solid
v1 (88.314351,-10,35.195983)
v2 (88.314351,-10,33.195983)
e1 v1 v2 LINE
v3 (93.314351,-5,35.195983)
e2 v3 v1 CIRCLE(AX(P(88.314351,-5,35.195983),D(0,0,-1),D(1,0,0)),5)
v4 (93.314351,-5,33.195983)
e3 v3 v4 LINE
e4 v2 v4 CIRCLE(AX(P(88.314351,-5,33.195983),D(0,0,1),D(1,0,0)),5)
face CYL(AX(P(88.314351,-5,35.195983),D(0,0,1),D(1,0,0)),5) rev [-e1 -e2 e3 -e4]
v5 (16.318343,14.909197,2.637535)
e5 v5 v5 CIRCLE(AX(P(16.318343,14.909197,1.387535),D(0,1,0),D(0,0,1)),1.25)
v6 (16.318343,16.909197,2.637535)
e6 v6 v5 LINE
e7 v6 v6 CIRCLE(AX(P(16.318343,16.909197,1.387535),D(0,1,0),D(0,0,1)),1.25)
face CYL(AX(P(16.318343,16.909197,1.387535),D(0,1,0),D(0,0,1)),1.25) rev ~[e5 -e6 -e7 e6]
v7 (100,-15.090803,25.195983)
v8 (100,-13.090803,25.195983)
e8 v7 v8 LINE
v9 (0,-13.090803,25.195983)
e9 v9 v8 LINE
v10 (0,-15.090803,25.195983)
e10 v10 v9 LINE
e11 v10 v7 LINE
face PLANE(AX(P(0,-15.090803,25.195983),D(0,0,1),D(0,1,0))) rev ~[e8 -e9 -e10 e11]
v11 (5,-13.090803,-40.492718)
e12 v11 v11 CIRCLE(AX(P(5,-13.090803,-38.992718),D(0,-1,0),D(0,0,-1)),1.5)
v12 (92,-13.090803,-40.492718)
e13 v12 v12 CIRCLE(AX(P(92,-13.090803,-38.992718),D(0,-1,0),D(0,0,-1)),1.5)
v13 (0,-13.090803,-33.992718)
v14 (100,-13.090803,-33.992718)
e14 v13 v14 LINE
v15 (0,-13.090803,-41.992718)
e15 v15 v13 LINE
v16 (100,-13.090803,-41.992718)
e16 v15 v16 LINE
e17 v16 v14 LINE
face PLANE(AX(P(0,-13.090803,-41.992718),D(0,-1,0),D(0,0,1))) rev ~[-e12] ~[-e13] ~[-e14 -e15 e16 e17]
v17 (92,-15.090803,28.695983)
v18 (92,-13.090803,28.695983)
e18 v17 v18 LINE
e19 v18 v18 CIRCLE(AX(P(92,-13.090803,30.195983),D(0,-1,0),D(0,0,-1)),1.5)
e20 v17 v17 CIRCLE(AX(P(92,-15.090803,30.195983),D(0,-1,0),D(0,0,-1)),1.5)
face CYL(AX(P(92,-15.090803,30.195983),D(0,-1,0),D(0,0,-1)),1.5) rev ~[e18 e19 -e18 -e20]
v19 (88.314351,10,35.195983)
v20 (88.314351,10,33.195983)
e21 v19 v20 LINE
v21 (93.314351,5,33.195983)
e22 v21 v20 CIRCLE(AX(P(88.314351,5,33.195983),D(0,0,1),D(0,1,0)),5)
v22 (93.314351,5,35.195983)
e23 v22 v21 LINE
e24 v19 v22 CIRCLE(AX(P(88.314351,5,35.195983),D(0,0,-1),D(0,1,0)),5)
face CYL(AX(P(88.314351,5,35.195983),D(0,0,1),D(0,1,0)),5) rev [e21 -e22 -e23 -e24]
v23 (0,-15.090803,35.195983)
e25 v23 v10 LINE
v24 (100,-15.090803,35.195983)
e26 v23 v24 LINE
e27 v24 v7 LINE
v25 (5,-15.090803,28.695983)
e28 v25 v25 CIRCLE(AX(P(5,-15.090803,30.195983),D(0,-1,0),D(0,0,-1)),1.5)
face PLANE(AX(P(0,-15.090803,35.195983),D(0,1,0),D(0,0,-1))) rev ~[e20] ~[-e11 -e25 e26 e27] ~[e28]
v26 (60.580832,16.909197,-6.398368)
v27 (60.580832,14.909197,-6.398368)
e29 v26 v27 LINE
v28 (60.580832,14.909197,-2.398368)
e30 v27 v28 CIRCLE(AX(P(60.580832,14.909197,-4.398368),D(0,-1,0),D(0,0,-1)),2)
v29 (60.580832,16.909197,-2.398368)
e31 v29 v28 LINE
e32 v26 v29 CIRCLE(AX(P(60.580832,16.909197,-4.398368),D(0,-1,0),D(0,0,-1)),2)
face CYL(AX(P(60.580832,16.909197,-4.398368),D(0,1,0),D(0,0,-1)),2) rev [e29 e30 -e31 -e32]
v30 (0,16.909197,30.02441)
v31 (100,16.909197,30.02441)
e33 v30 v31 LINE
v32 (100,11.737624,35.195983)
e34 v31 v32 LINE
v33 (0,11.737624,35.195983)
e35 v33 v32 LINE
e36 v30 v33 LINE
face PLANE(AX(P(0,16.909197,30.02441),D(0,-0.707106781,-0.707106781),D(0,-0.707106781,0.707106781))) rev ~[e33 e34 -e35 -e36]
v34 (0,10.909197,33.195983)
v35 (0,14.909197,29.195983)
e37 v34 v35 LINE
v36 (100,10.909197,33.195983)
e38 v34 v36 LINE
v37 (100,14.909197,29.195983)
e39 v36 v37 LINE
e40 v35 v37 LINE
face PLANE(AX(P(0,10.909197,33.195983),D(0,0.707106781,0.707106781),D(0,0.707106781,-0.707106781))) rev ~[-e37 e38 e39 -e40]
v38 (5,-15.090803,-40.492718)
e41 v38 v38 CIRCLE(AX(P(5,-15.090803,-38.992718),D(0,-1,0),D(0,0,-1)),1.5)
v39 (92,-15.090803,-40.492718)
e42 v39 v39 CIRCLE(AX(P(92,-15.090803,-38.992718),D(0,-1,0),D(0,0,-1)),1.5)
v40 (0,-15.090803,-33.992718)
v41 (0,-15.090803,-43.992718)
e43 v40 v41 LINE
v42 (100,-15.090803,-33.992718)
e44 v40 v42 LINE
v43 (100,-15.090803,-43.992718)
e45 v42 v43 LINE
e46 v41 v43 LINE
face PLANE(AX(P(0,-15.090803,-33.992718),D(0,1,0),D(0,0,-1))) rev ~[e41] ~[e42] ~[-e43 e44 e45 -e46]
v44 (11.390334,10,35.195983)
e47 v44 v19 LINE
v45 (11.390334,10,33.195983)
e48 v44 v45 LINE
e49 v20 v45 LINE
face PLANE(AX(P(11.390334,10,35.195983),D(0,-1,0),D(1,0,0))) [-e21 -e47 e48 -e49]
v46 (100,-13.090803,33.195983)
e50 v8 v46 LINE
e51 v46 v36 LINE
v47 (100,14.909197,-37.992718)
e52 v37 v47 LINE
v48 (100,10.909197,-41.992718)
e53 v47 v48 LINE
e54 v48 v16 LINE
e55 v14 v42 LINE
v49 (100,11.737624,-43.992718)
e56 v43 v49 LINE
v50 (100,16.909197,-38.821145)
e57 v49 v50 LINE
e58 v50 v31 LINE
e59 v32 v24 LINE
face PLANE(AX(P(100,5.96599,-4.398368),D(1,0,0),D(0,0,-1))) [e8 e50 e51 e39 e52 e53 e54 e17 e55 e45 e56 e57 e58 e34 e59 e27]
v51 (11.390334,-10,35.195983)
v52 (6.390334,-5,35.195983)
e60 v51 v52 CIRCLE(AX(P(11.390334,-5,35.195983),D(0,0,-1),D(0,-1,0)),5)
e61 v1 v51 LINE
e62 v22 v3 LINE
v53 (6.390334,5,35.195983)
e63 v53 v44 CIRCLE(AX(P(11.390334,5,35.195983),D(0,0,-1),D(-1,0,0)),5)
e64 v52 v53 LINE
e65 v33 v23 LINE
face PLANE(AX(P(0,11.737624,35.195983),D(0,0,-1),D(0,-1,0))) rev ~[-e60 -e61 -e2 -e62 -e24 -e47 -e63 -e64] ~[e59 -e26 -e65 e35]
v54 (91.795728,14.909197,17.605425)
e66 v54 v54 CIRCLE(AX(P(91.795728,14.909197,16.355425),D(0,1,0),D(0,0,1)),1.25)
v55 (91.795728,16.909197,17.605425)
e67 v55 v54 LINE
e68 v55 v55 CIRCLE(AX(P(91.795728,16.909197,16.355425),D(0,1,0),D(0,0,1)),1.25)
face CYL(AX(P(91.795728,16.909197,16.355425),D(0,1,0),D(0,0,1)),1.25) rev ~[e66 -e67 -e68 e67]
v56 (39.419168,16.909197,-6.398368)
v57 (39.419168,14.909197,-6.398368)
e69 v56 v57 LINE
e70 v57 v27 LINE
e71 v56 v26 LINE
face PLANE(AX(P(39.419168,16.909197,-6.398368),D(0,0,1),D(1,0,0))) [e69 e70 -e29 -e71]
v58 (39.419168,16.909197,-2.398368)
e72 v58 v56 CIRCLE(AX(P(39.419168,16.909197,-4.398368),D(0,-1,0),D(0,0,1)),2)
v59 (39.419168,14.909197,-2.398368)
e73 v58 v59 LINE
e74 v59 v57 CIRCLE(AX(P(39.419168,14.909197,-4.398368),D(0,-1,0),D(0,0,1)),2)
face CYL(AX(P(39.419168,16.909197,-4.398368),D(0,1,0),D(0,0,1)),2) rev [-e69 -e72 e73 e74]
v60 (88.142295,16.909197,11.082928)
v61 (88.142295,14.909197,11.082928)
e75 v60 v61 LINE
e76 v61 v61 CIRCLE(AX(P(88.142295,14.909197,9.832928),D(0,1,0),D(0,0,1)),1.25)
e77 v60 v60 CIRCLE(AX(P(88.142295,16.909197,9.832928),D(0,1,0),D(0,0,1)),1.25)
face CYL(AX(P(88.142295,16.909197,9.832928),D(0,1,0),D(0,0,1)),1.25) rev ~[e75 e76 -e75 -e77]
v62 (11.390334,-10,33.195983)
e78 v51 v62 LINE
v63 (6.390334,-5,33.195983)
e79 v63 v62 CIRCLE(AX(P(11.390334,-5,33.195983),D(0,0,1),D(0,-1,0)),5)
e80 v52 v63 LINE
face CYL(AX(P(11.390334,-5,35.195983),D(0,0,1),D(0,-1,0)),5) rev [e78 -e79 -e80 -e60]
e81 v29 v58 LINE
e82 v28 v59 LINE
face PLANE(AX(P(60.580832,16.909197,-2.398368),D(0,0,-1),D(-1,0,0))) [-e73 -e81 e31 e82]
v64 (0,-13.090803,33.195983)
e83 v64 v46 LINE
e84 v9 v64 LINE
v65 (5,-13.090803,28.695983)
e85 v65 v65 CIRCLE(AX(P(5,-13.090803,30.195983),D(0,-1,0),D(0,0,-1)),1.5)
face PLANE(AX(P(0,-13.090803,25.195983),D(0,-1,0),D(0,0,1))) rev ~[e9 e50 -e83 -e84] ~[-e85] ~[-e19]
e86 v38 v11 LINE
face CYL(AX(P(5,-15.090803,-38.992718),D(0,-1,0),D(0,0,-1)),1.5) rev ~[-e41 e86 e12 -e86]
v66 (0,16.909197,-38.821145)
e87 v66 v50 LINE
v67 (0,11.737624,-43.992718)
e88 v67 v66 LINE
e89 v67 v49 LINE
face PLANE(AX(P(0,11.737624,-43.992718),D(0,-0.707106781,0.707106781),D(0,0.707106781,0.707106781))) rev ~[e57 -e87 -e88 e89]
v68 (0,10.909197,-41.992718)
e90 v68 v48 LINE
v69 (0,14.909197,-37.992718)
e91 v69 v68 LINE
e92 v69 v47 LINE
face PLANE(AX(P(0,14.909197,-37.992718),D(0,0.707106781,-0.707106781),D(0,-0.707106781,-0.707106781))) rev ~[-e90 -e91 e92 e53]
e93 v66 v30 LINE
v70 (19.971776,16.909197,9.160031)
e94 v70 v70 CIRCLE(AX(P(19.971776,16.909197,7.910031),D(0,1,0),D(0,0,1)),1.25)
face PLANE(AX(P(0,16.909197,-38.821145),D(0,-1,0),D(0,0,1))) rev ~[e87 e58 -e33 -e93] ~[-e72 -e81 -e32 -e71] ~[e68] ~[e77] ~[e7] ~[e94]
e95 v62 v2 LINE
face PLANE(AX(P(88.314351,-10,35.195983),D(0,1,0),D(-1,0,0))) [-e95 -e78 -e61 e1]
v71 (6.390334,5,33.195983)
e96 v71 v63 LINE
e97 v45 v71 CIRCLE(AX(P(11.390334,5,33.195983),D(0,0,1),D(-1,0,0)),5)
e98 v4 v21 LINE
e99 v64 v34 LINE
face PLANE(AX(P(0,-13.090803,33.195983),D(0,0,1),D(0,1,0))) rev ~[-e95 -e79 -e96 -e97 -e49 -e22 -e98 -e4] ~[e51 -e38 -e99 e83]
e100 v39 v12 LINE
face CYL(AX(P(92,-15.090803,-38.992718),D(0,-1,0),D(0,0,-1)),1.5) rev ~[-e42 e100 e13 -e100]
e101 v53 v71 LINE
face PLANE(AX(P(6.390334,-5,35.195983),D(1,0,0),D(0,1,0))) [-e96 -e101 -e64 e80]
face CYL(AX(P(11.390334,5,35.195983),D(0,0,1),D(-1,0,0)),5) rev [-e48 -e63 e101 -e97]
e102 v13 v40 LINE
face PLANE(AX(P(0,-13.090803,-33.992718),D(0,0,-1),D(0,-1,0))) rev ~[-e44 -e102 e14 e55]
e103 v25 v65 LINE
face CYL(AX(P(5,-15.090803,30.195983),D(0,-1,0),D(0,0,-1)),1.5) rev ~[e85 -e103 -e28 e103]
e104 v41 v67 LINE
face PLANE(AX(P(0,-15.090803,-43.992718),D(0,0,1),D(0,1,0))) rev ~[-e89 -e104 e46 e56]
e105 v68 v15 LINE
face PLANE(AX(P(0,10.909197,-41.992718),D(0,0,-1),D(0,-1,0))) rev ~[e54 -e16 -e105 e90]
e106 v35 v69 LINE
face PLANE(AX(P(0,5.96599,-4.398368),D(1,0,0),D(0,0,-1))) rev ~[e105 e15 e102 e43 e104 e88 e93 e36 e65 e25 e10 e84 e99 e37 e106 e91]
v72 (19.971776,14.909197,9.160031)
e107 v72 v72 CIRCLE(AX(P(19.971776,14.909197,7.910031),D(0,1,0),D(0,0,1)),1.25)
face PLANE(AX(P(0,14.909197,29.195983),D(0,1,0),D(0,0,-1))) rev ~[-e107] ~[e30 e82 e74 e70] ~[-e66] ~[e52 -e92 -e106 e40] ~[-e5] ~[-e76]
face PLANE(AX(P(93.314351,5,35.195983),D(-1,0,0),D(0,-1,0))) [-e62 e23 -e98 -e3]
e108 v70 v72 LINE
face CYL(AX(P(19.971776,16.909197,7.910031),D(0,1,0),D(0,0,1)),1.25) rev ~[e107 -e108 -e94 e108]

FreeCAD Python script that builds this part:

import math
import FreeCAD as App
import Part
import Sketcher
Q = App.Units.Quantity


def add_polygon(sketch, points):
    """Adds a closed chain of lines whose ends are joined by coincident constraints."""
    first, n = sketch.GeometryCount, len(points)
    for a, b in zip(points, points[1:] + points[:1]):
        sketch.addGeometry(Part.LineSegment(App.Vector(*a, 0), App.Vector(*b, 0)), False)
    for i in range(n):
        sketch.addConstraint(Sketcher.Constraint("Coincident", first + i, 2, first + (i + 1) % n, 1))

doc = App.newDocument("Part")
body = doc.addObject("PartDesign::Body", "Body")

sketch1 = body.newObject("Sketcher::SketchObject", "Sketch")
sketch1.AttachmentSupport = (doc.getObject("YZ_Plane"), [""])
sketch1.MapMode = "FlatFace"
add_polygon(sketch1, [(-13.1, 25.2), (-13.1, 33.2), (10.9, 33.2), (14.9, 29.2), (14.9, -38), (10.9, -42), (-13.1, -42), (-13.1, -34), (-15.1, -34), (-15.1, -44), (11.7, -44), (16.9, -38.8), (16.9, 30), (11.7, 35.2), (-15.1, 35.2), (-15.1, 25.2)])
sketch1.addConstraint([
    Sketcher.Constraint("Vertical", 0),
    Sketcher.Constraint("Horizontal", 1),
    Sketcher.Constraint("Vertical", 3),
    Sketcher.Constraint("Horizontal", 5),
    Sketcher.Constraint("Vertical", 6),
    Sketcher.Constraint("Horizontal", 7),
    Sketcher.Constraint("Vertical", 8),
    Sketcher.Constraint("Horizontal", 9),
    Sketcher.Constraint("Vertical", 11),
    Sketcher.Constraint("Horizontal", 13),
    Sketcher.Constraint("Vertical", 14),
    Sketcher.Constraint("Horizontal", 15),
    Sketcher.Constraint("Perpendicular", 2, 4),
    Sketcher.Constraint("Parallel", 4, 10),
    Sketcher.Constraint("Perpendicular", 10, 12),
    Sketcher.Constraint("Vertical", 1, 2, 4, 2),
    Sketcher.Constraint("Vertical", 0, 2, 5, 2),
    Sketcher.Constraint("Vertical", 9, 2, 12, 2),
    Sketcher.Constraint("Vertical", 8, 2, 13, 2),
    Sketcher.Constraint("Equal", 0, 6),
    Sketcher.Constraint("Equal", 8, 14),
    Sketcher.Constraint("Equal", 2, 4),
    Sketcher.Constraint("DistanceX", 1, 1, 1, 2, Q("24 mm")),
    Sketcher.Constraint("DistanceX", 7, 2, 7, 1, Q("2 mm")),
    Sketcher.Constraint("DistanceY", 0, 1, 0, 2, Q("8 mm")),
    Sketcher.Constraint("DistanceY", 8, 2, 8, 1, Q("10 mm")),
    Sketcher.Constraint("DistanceX", 1, 2, 2, 2, Q("4 mm")),
    Sketcher.Constraint("DistanceX", 3, 2, 10, 2, Q("2 mm")),
    Sketcher.Constraint("DistanceY", 3, 2, 3, 1, Q("67.1887 mm")),
    Sketcher.Constraint("Distance", 10, Q("7.313708 mm")),
    Sketcher.Constraint("DistanceY", -1, 1, 11, 2, Q("30.02441 mm")),
    Sketcher.Constraint("DistanceX", 0, 2, -1, 1, Q("13.090803 mm")),
])
pad1 = body.newObject("PartDesign::Pad", "Pad")
pad1.Profile = sketch1
pad1.Length = 100

sketch2 = body.newObject("Sketcher::SketchObject", "Sketch001")
sketch2.AttachmentSupport = (doc.getObject("XZ_Plane"), [""])
sketch2.MapMode = "FlatFace"
sketch2.AttachmentOffset = App.Placement(App.Vector(0, 0, 15.090803), App.Rotation())
sketch2.addGeometry([
    Part.Circle(App.Vector(5, 30.2, 0), App.Vector(0, 0, 1), 1.5),
    Part.Circle(App.Vector(92, 30.2, 0), App.Vector(0, 0, 1), 1.5),
    Part.Circle(App.Vector(92, -39, 0), App.Vector(0, 0, 1), 1.5),
    Part.Circle(App.Vector(5, -39, 0), App.Vector(0, 0, 1), 1.5),
], False)
sketch2.addConstraint([
    Sketcher.Constraint("Equal", 0, 1),
    Sketcher.Constraint("Equal", 1, 2),
    Sketcher.Constraint("Equal", 2, 3),
    Sketcher.Constraint("Horizontal", 0, 3, 1, 3),
    Sketcher.Constraint("Horizontal", 2, 3, 3, 3),
    Sketcher.Constraint("Vertical", 1, 3, 2, 3),
    Sketcher.Constraint("Vertical", 0, 3, 3, 3),
    Sketcher.Constraint("Diameter", 0, Q("3 mm")),
    Sketcher.Constraint("DistanceX", -1, 1, 0, 3, Q("5 mm")),
    Sketcher.Constraint("DistanceX", -1, 1, 1, 3, Q("92 mm")),
    Sketcher.Constraint("DistanceY", 2, 3, 1, 3, Q("69.1887 mm")),
    Sketcher.Constraint("DistanceY", -1, 1, 0, 3, Q("30.195983 mm")),
])
pocket1 = body.newObject("PartDesign::Pocket", "Pocket")
pocket1.Profile = sketch2
pocket1.Length = 4

sketch3 = body.newObject("Sketcher::SketchObject", "Sketch002")
sketch3.AttachmentSupport = (doc.getObject("XY_Plane"), [""])
sketch3.MapMode = "FlatFace"
sketch3.AttachmentOffset = App.Placement(App.Vector(0, 0, 35.195983), App.Rotation())
sketch3.addGeometry([
    Part.LineSegment(App.Vector(88, 10, 0), App.Vector(11, 10, 0)),
    Part.ArcOfCircle(Part.Circle(App.Vector(11, 5, 0), App.Vector(0, 0, 1), 5), math.radians(90), math.radians(180)),
    Part.LineSegment(App.Vector(6, 5, 0), App.Vector(6, -5, 0)),
    Part.ArcOfCircle(Part.Circle(App.Vector(11, -5, 0), App.Vector(0, 0, 1), 5), math.radians(180), math.radians(270)),
    Part.LineSegment(App.Vector(11, -10, 0), App.Vector(88, -10, 0)),
    Part.ArcOfCircle(Part.Circle(App.Vector(88, -5, 0), App.Vector(0, 0, 1), 5), math.radians(-90), math.radians(0)),
    Part.LineSegment(App.Vector(93, -5, 0), App.Vector(93, 5, 0)),
    Part.ArcOfCircle(Part.Circle(App.Vector(88, 5, 0), App.Vector(0, 0, 1), 5), math.radians(0), math.radians(90)),
], False)
sketch3.addConstraint([
    Sketcher.Constraint("Tangent", 0, 2, 1, 1),
    Sketcher.Constraint("Tangent", 1, 2, 2, 1),
    Sketcher.Constraint("Tangent", 2, 2, 3, 1),
    Sketcher.Constraint("Tangent", 3, 2, 4, 1),
    Sketcher.Constraint("Tangent", 4, 2, 5, 1),
    Sketcher.Constraint("Tangent", 5, 2, 6, 1),
    Sketcher.Constraint("Tangent", 6, 2, 7, 1),
    Sketcher.Constraint("Tangent", 7, 2, 0, 1),
    Sketcher.Constraint("Horizontal", 0),
    Sketcher.Constraint("Vertical", 2),
    Sketcher.Constraint("Horizontal", 4),
    Sketcher.Constraint("Vertical", 6),
    Sketcher.Constraint("Equal", 1, 3),
    Sketcher.Constraint("Equal", 3, 5),
    Sketcher.Constraint("Equal", 5, 7),
    Sketcher.Constraint("Radius", 1, Q("5 mm")),
    Sketcher.Constraint("DistanceY", 2, 2, 2, 1, Q("10 mm")),
    Sketcher.Constraint("DistanceY", -1, 1, 1, 3, Q("5 mm")),
    Sketcher.Constraint("DistanceX", 0, 2, 0, 1, Q("76.924017 mm")),
    Sketcher.Constraint("DistanceX", -1, 1, 5, 3, Q("88.314351 mm")),
])
pocket2 = body.newObject("PartDesign::Pocket", "Pocket001")
pocket2.Profile = sketch3
pocket2.Type = "UpToFirst"

sketch4 = body.newObject("Sketcher::SketchObject", "Sketch003")
sketch4.AttachmentSupport = (doc.getObject("XZ_Plane"), [""])
sketch4.MapMode = "FlatFace"
sketch4.AttachmentOffset = App.Placement(App.Vector(0, 0, -16.909197), App.Rotation())
sketch4.addGeometry(Part.Circle(App.Vector(20, 7.9, 0), App.Vector(0, 0, 1), 1.2), False)
sketch4.addConstraint([
    Sketcher.Constraint("Diameter", 0, Q("2.5 mm")),
    Sketcher.Constraint("DistanceY", -1, 1, 0, 3, Q("7.910031 mm")),
    Sketcher.Constraint("DistanceX", -1, 1, 0, 3, Q("19.971776 mm")),
])
pocket3 = body.newObject("PartDesign::Pocket", "Pocket002")
pocket3.Profile = sketch4
pocket3.Type = "UpToFirst"
pocket3.Reversed = True

sketch5 = body.newObject("Sketcher::SketchObject", "Sketch004")
sketch5.AttachmentSupport = (doc.getObject("XZ_Plane"), [""])
sketch5.MapMode = "FlatFace"
sketch5.AttachmentOffset = App.Placement(App.Vector(0, 0, -16.909197), App.Rotation())
sketch5.addGeometry(Part.Circle(App.Vector(91.8, 16.4, 0), App.Vector(0, 0, 1), 1.2), False)
sketch5.addConstraint([
    Sketcher.Constraint("Diameter", 0, Q("2.5 mm")),
    Sketcher.Constraint("DistanceX", -1, 1, 0, 3, Q("91.795728 mm")),
    Sketcher.Constraint("DistanceY", -1, 1, 0, 3, Q("16.355425 mm")),
])
pocket4 = body.newObject("PartDesign::Pocket", "Pocket003")
pocket4.Profile = sketch5
pocket4.Type = "UpToFirst"
pocket4.Reversed = True

sketch6 = body.newObject("Sketcher::SketchObject", "Sketch005")
sketch6.AttachmentSupport = (doc.getObject("XZ_Plane"), [""])
sketch6.MapMode = "FlatFace"
sketch6.AttachmentOffset = App.Placement(App.Vector(0, 0, -16.909197), App.Rotation())
sketch6.addGeometry(Part.Circle(App.Vector(16.3, 1.4, 0), App.Vector(0, 0, 1), 1.2), False)
sketch6.addConstraint([
    Sketcher.Constraint("Diameter", 0, Q("2.5 mm")),
    Sketcher.Constraint("DistanceX", -1, 1, 0, 3, Q("16.318343 mm")),
    Sketcher.Constraint("DistanceY", -1, 1, 0, 3, Q("1.387535 mm")),
])
pocket5 = body.newObject("PartDesign::Pocket", "Pocket004")
pocket5.Profile = sketch6
pocket5.Type = "UpToFirst"
pocket5.Reversed = True

sketch7 = body.newObject("Sketcher::SketchObject", "Sketch006")
sketch7.AttachmentSupport = (doc.getObject("XZ_Plane"), [""])
sketch7.MapMode = "FlatFace"
sketch7.AttachmentOffset = App.Placement(App.Vector(0, 0, -16.909197), App.Rotation())
sketch7.addGeometry(Part.Circle(App.Vector(88.1, 9.8, 0), App.Vector(0, 0, 1), 1.2), False)
sketch7.addConstraint([
    Sketcher.Constraint("Diameter", 0, Q("2.5 mm")),
    Sketcher.Constraint("DistanceY", -1, 1, 0, 3, Q("9.832928 mm")),
    Sketcher.Constraint("DistanceX", -1, 1, 0, 3, Q("88.142295 mm")),
])
pocket6 = body.newObject("PartDesign::Pocket", "Pocket005")
pocket6.Profile = sketch7
pocket6.Type = "UpToFirst"
pocket6.Reversed = True

sketch8 = body.newObject("Sketcher::SketchObject", "Sketch007")
sketch8.AttachmentSupport = (doc.getObject("XZ_Plane"), [""])
sketch8.MapMode = "FlatFace"
sketch8.AttachmentOffset = App.Placement(App.Vector(0, 0, -16.909197), App.Rotation())
sketch8.addGeometry([
    Part.LineSegment(App.Vector(60.6, -6.4, 0), App.Vector(39.4, -6.4, 0)),
    Part.ArcOfCircle(Part.Circle(App.Vector(39.4, -4.4, 0), App.Vector(0, 0, 1), 2), math.radians(90), math.radians(270)),
    Part.LineSegment(App.Vector(39.4, -2.4, 0), App.Vector(60.6, -2.4, 0)),
    Part.ArcOfCircle(Part.Circle(App.Vector(60.6, -4.4, 0), App.Vector(0, 0, 1), 2), math.radians(-90), math.radians(90)),
], False)
sketch8.addConstraint([
    Sketcher.Constraint("Tangent", 0, 2, 1, 2),
    Sketcher.Constraint("Tangent", 1, 1, 2, 1),
    Sketcher.Constraint("Tangent", 2, 2, 3, 2),
    Sketcher.Constraint("Tangent", 3, 1, 0, 1),
    Sketcher.Constraint("Horizontal", 0),
    Sketcher.Constraint("Horizontal", 2),
    Sketcher.Constraint("Radius", 1, Q("2 mm")),
    Sketcher.Constraint("DistanceX", 0, 2, 0, 1, Q("21.161664 mm")),
    Sketcher.Constraint("DistanceX", -1, 1, 1, 3, Q("39.419168 mm")),
    Sketcher.Constraint("DistanceY", 1, 3, -1, 1, Q("4.398368 mm")),
])
pocket7 = body.newObject("PartDesign::Pocket", "Pocket006")
pocket7.Profile = sketch8
pocket7.Length = 2
pocket7.Reversed = True

doc.recompute()
